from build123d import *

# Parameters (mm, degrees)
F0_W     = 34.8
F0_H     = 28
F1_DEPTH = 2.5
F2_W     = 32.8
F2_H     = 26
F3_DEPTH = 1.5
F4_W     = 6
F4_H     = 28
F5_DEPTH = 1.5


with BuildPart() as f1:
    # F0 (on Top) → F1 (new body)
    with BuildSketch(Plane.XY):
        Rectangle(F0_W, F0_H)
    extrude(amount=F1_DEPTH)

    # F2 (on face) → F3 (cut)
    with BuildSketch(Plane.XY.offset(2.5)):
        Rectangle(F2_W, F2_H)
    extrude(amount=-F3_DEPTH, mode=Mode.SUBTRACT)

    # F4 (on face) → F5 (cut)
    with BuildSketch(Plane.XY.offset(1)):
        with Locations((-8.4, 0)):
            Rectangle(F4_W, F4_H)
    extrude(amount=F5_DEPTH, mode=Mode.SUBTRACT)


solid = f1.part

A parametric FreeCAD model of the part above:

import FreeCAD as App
import Part
import Sketcher
from FreeCAD import Vector
Q = App.Units.Quantity


def add_polygon(sketch, points):
    """Adds a closed chain of lines whose ends are joined by coincident constraints."""
    first, n = sketch.GeometryCount, len(points)
    for a, b in zip(points, points[1:] + points[:1]):
        sketch.addGeometry(Part.LineSegment(App.Vector(*a, 0), App.Vector(*b, 0)), False)
    for i in range(n):
        sketch.addConstraint(Sketcher.Constraint("Coincident", first + i, 2, first + (i + 1) % n, 1))

doc = App.newDocument("Part")
body = doc.addObject("PartDesign::Body", "Body")

sketch1 = body.newObject("Sketcher::SketchObject", "Sketch")
sketch1.AttachmentSupport = (doc.getObject("XY_Plane"), [""])
sketch1.MapMode = "FlatFace"
add_polygon(sketch1, [(-17, 14), (-17, -14), (17, -14), (17, 14)])
sketch1.addConstraint(Sketcher.Constraint("Vertical", 0))
sketch1.addConstraint(Sketcher.Constraint("Horizontal", 1))
sketch1.addConstraint(Sketcher.Constraint("Vertical", 2))
sketch1.addConstraint(Sketcher.Constraint("Horizontal", 3))
sketch1.addConstraint(Sketcher.Constraint("Symmetric", 0, 2, 2, 2, -1, 1))
sketch1.addConstraint(Sketcher.Constraint("DistanceY", 0, 2, 0, 1, Q("28 mm")))
sketch1.addConstraint(Sketcher.Constraint("DistanceX", 1, 1, 1, 2, Q("34.8 mm")))
pad1 = body.newObject("PartDesign::Pad", "Pad")
pad1.Profile = sketch1
pad1.Length = 2.5

sketch2 = body.newObject("Sketcher::SketchObject", "Sketch001")
sketch2.AttachmentSupport = (doc.getObject("XY_Plane"), [""])
sketch2.MapMode = "FlatFace"
sketch2.AttachmentOffset = App.Placement(Vector(0, 0, 2.5), App.Rotation())
add_polygon(sketch2, [(-16, 13), (-16, -13), (16, -13), (16, 13)])
sketch2.addConstraint(Sketcher.Constraint("Vertical", 0))
sketch2.addConstraint(Sketcher.Constraint("Horizontal", 1))
sketch2.addConstraint(Sketcher.Constraint("Vertical", 2))
sketch2.addConstraint(Sketcher.Constraint("Horizontal", 3))
sketch2.addConstraint(Sketcher.Constraint("Symmetric", 0, 2, 2, 2, -1, 1))
sketch2.addConstraint(Sketcher.Constraint("DistanceY", 0, 2, 0, 1, Q("26 mm")))
sketch2.addConstraint(Sketcher.Constraint("DistanceX", 1, 1, 1, 2, Q("32.8 mm")))
pocket1 = body.newObject("PartDesign::Pocket", "Pocket")
pocket1.Profile = sketch2
pocket1.Length = 1.5

sketch3 = body.newObject("Sketcher::SketchObject", "Sketch002")
sketch3.AttachmentSupport = (doc.getObject("XY_Plane"), [""])
sketch3.MapMode = "FlatFace"
sketch3.AttachmentOffset = App.Placement(Vector(0, 0, 1), App.Rotation())
add_polygon(sketch3, [(-11, 14), (-11, -14), (-5, -14), (-5, 14)])
sketch3.addConstraint(Sketcher.Constraint("Vertical", 0))
sketch3.addConstraint(Sketcher.Constraint("Horizontal", 1))
sketch3.addConstraint(Sketcher.Constraint("Vertical", 2))
sketch3.addConstraint(Sketcher.Constraint("Horizontal", 3))
sketch3.addConstraint(Sketcher.Constraint("DistanceX", 1, 1, 1, 2, Q("6 mm")))
sketch3.addConstraint(Sketcher.Constraint("DistanceY", 0, 2, 0, 1, Q("28 mm")))
sketch3.addConstraint(Sketcher.Constraint("DistanceY", 0, 2, -1, 1, Q("14 mm")))
sketch3.addConstraint(Sketcher.Constraint("DistanceX", 0, 2, -1, 1, Q("11.4 mm")))
pocket2 = body.newObject("PartDesign::Pocket", "Pocket001")
pocket2.Profile = sketch3
pocket2.Length = 1.5
pocket2.Reversed = True

doc.recompute()
